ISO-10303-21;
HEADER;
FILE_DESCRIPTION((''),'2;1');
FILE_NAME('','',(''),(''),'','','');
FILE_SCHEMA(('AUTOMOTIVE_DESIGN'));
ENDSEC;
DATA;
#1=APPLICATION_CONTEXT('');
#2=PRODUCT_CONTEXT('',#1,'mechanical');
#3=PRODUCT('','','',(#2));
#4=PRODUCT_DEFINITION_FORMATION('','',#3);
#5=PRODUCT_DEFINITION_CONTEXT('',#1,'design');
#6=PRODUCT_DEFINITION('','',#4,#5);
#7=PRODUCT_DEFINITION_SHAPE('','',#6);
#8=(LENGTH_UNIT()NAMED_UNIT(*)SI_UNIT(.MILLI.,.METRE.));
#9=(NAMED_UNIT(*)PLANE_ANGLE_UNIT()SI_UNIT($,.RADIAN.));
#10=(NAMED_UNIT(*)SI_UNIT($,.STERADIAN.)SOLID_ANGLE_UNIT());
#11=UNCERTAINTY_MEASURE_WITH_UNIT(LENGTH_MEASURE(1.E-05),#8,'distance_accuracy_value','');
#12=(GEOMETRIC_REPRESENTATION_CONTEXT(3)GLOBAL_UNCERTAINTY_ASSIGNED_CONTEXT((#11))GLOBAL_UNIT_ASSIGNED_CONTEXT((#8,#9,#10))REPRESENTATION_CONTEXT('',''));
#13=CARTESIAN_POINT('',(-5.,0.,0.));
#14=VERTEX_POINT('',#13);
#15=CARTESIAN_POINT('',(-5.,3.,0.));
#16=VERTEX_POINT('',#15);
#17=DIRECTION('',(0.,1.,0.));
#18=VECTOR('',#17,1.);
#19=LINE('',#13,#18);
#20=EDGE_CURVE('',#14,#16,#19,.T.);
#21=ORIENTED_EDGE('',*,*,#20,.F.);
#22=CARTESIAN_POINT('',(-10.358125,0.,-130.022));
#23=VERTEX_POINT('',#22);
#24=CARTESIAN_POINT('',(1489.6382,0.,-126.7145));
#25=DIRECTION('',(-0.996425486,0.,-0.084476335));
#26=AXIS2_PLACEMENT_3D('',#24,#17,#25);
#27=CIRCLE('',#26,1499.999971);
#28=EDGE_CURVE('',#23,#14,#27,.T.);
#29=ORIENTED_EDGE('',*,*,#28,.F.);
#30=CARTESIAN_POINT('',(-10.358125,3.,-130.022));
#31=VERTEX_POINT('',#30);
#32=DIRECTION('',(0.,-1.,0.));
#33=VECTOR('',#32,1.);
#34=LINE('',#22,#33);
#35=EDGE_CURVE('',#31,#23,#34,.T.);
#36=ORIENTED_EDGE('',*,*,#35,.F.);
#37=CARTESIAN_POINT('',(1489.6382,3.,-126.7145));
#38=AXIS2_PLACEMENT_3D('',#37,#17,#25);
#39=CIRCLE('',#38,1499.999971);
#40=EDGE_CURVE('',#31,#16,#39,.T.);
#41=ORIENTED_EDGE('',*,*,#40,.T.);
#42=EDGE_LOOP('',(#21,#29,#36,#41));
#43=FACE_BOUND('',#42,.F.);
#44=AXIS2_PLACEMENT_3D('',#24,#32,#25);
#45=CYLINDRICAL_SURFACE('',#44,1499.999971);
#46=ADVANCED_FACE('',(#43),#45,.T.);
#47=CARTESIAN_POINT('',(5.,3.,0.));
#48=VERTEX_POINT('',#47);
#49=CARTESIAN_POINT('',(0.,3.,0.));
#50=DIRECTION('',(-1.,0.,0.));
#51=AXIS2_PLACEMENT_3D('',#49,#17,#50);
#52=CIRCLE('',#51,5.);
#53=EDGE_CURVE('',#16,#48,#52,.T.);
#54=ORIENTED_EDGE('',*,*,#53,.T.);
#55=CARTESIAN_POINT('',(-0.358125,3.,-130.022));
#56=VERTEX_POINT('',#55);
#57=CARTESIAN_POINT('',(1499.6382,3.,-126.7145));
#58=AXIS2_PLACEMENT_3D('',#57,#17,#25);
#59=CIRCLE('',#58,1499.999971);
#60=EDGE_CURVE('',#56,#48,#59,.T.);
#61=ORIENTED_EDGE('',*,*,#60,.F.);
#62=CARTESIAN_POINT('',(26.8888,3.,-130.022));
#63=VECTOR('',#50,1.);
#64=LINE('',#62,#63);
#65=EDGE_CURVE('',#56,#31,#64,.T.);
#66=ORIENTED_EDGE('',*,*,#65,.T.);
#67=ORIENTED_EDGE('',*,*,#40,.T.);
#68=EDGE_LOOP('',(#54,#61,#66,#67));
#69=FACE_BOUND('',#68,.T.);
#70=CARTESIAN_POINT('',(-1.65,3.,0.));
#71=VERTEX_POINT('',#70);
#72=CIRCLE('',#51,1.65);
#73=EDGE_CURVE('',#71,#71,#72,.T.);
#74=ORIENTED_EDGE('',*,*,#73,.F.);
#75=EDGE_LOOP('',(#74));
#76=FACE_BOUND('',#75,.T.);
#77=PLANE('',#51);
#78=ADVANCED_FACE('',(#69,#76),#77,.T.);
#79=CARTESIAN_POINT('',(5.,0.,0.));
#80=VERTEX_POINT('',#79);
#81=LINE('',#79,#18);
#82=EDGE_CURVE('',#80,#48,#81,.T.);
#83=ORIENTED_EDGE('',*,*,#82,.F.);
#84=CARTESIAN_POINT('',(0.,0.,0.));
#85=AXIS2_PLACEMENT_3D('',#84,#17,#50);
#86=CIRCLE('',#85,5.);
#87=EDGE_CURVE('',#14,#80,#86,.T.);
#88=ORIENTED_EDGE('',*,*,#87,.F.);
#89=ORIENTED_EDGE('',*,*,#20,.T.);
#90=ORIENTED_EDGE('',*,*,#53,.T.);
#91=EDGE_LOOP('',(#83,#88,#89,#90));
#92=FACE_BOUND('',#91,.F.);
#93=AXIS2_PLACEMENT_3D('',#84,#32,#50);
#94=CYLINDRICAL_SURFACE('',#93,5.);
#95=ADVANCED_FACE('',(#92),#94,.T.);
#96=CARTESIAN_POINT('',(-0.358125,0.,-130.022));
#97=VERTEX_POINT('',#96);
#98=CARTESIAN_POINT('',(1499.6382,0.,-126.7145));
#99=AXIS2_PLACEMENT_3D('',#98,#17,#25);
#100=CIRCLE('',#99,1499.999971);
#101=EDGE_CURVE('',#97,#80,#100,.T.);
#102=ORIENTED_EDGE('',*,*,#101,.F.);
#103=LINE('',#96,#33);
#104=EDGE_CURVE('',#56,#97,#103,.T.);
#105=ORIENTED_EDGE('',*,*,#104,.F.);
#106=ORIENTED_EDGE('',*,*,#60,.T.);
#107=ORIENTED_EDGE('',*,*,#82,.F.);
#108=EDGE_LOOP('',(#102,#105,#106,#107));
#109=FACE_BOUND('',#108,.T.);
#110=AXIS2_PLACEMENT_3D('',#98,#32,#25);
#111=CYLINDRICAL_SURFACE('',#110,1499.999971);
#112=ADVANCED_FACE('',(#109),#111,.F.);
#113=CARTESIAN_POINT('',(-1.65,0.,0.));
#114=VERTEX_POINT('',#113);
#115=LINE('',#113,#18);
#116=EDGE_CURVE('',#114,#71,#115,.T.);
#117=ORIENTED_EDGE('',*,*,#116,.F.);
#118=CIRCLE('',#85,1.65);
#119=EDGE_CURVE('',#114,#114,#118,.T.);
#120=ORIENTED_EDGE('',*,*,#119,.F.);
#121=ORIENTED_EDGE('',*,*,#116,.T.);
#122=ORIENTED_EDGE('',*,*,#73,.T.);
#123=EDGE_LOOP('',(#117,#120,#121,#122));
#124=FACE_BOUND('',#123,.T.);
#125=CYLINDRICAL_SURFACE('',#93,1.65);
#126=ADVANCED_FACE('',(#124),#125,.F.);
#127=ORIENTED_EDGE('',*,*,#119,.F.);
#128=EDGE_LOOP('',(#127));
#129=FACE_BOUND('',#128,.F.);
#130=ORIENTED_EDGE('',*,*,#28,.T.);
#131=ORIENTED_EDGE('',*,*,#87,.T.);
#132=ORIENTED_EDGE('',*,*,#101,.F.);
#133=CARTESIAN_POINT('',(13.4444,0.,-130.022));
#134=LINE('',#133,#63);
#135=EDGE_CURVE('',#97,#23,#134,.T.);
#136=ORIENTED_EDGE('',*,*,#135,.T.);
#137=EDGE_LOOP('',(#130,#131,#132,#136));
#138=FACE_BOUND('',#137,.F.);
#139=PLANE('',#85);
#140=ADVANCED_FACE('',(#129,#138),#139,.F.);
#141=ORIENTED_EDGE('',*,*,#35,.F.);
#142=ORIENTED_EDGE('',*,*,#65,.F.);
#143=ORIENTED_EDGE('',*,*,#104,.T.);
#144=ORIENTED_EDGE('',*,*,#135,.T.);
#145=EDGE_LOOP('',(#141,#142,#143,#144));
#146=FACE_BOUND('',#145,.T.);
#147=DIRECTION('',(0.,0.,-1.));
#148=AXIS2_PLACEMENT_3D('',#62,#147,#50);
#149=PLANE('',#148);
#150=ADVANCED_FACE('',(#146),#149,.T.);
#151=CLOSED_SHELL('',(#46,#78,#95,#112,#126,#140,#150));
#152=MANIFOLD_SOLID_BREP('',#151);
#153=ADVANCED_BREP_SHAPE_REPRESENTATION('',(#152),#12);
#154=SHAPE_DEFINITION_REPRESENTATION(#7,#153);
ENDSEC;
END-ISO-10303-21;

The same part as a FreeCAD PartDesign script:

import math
import FreeCAD as App
import Part
import Sketcher

V = App.Vector

doc = App.newDocument("Part")
body = doc.addObject("PartDesign::Body", "Body")

sketch1 = body.newObject("Sketcher::SketchObject", "Sketch")
sketch1.AttachmentSupport = (doc.getObject("XZ_Plane"), [""])
sketch1.MapMode = "FlatFace"
sketch1.addGeometry(Part.ArcOfCircle(Part.Circle(V(1489.6382, -126.7145, 0), V(0, 0, 1), 1499.999971), math.radians(175.154087), math.radians(184.845913)), False)
sketch1.addGeometry(Part.ArcOfCircle(Part.Circle(V(0, 0, 0), V(0, 0, 1), 5), math.radians(0), math.radians(180)), False)
sketch1.addGeometry(Part.ArcOfCircle(Part.Circle(V(1499.6382, -126.7145, 0), V(0, 0, 1), 1499.999971), math.radians(175.154087), math.radians(184.845913)), False)
sketch1.addGeometry(Part.ArcOfCircle(Part.Circle(V(0, -253.429, 0), V(0, 0, 1), 5), math.radians(180), math.radians(360)), False)
sketch1.addGeometry(Part.Circle(V(0, 0, 0), V(0, 0, 1), 1.65), False)
sketch1.addGeometry(Part.Circle(V(0, -253.429, 0), V(0, 0, 1), 1.65), False)
sketch1.addConstraint(Sketcher.Constraint("Coincident", 0, 1, 1, 2))
sketch1.addConstraint(Sketcher.Constraint("Coincident", 1, 1, 2, 1))
sketch1.addConstraint(Sketcher.Constraint("Coincident", 2, 2, 3, 2))
sketch1.addConstraint(Sketcher.Constraint("Coincident", 3, 1, 0, 2))
sketch1.addConstraint(Sketcher.Constraint("Coincident", 1, 3, -1, 1))
sketch1.addConstraint(Sketcher.Constraint("Coincident", 4, 3, -1, 1))
sketch1.addConstraint(Sketcher.Constraint("Coincident", 5, 3, 3, 3))
sketch1.addConstraint(Sketcher.Constraint("Equal", 0, 2))
sketch1.addConstraint(Sketcher.Constraint("Equal", 1, 3))
sketch1.addConstraint(Sketcher.Constraint("Equal", 4, 5))
sketch1.addConstraint(Sketcher.Constraint("Symmetric", 2, 2, 3, 1, -2))
sketch1.addConstraint(Sketcher.Constraint("PointOnObject", 1, 1, -1))
sketch1.addConstraint(Sketcher.Constraint("Horizontal", 0, 3, 2, 3))
sketch1.addConstraint(Sketcher.Constraint("Radius", 0, 1500.0))
sketch1.addConstraint(Sketcher.Constraint("Radius", 1, 5.0))
sketch1.addConstraint(Sketcher.Constraint("Diameter", 4, 3.3))
sketch1.addConstraint(Sketcher.Constraint("DistanceY", 3, 3, -1, 1, 253.429))
sketch1.addConstraint(Sketcher.Constraint("DistanceY", 3, 1, -1, 1, 253.429))
pad1 = body.newObject("PartDesign::Pad", "Pad")
pad1.Profile = sketch1
pad1.Length = 3
pad1.Reversed = True

sketch2 = body.newObject("Sketcher::SketchObject", "Sketch001")
sketch2.AttachmentSupport = (doc.getObject("XZ_Plane"), [""])
sketch2.MapMode = "FlatFace"
sketch2.AttachmentOffset = App.Placement(V(0, 0, -3), App.Rotation())
sketch2.addGeometry(Part.LineSegment(V(26.8888, -271.9091, 0), V(-27.9396, -271.9091, 0)), False)
sketch2.addGeometry(Part.LineSegment(V(-27.9396, -271.9091, 0), V(-27.9396, -130.022, 0)), False)
sketch2.addGeometry(Part.LineSegment(V(-27.9396, -130.022, 0), V(26.8888, -130.022, 0)), False)
sketch2.addGeometry(Part.LineSegment(V(26.8888, -130.022, 0), V(26.8888, -271.9091, 0)), False)
sketch2.addConstraint(Sketcher.Constraint("Coincident", 0, 2, 1, 1))
sketch2.addConstraint(Sketcher.Constraint("Coincident", 1, 2, 2, 1))
sketch2.addConstraint(Sketcher.Constraint("Coincident", 2, 2, 3, 1))
sketch2.addConstraint(Sketcher.Constraint("Coincident", 3, 2, 0, 1))
sketch2.addConstraint(Sketcher.Constraint("Horizontal", 0))
sketch2.addConstraint(Sketcher.Constraint("Vertical", 1))
sketch2.addConstraint(Sketcher.Constraint("Horizontal", 2))
sketch2.addConstraint(Sketcher.Constraint("Vertical", 3))
sketch2.addConstraint(Sketcher.Constraint("DistanceY", 1, 1, 1, 2, 141.887))
sketch2.addConstraint(Sketcher.Constraint("DistanceX", 0, 2, 0, 1, 54.8284))
sketch2.addConstraint(Sketcher.Constraint("DistanceY", 0, 2, -1, 1, 271.909))
sketch2.addConstraint(Sketcher.Constraint("DistanceX", 0, 2, -1, 1, 27.9396))
pocket1 = body.newObject("PartDesign::Pocket", "Pocket")
pocket1.Profile = sketch2
pocket1.Length = 10
pocket1.Reversed = True

doc.recompute()
